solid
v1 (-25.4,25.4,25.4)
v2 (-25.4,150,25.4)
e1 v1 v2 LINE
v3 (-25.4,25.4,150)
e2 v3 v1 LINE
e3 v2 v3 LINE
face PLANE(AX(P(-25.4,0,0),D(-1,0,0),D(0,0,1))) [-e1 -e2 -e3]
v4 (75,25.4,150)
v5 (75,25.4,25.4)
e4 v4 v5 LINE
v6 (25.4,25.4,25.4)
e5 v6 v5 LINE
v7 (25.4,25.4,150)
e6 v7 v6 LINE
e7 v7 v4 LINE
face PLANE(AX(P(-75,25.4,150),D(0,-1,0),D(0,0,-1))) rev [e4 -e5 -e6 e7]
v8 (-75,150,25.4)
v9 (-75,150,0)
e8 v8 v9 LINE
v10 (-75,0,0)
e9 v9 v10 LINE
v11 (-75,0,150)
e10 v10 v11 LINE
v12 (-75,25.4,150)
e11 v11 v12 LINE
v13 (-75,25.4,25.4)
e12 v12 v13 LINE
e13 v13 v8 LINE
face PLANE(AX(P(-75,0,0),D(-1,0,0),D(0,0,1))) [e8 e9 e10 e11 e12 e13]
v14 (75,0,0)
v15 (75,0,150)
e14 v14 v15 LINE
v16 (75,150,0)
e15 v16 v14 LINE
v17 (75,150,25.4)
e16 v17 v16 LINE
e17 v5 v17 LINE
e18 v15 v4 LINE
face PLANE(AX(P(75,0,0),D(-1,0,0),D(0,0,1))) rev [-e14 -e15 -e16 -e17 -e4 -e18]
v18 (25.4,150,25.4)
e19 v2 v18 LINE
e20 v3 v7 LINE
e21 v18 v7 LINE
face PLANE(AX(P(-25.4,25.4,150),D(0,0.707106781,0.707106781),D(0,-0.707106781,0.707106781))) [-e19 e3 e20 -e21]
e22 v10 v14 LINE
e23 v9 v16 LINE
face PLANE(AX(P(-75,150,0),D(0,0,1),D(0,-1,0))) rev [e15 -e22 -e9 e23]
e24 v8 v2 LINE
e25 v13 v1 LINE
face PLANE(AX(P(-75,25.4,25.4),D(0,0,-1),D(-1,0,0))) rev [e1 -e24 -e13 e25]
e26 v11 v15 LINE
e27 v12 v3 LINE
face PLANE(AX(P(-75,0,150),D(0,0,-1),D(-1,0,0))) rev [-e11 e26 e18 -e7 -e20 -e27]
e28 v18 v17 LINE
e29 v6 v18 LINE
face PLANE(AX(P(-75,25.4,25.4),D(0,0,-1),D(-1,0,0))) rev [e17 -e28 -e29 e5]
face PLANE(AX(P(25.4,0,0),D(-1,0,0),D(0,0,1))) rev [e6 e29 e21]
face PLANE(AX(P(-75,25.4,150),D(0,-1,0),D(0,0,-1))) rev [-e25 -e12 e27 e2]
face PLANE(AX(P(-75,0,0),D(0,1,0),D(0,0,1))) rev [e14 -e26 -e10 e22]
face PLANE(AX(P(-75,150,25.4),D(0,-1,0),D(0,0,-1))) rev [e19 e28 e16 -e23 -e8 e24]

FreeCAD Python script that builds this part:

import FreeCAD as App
import Part
import Sketcher
from FreeCAD import Vector


def add_polygon(sketch, points):
    """Adds a closed chain of lines whose ends are joined by coincident constraints."""
    first, n = sketch.GeometryCount, len(points)
    for a, b in zip(points, points[1:] + points[:1]):
        sketch.addGeometry(Part.LineSegment(App.Vector(*a, 0), App.Vector(*b, 0)), False)
    for i in range(n):
        sketch.addConstraint(Sketcher.Constraint("Coincident", first + i, 2, first + (i + 1) % n, 1))

doc = App.newDocument("Part")
body = doc.addObject("PartDesign::Body", "Body")

# Sketch on YZ plane
sketch1 = body.newObject("Sketcher::SketchObject", "Sketch")
sketch1.AttachmentSupport = (doc.getObject("YZ_Plane"), [""])
sketch1.MapMode = "FlatFace"
add_polygon(sketch1, [(0, 150), (0, 0), (150, 0), (150, 25), (25, 25), (25, 150)])  # lines 0-5
sketch1.addConstraint([
    Sketcher.Constraint("Vertical", 0),
    Sketcher.Constraint("Horizontal", 1),
    Sketcher.Constraint("Vertical", 2),
    Sketcher.Constraint("Horizontal", 3),
    Sketcher.Constraint("Vertical", 4),
    Sketcher.Constraint("Horizontal", 5),
    Sketcher.Constraint("Coincident", 0, 2, -1, 1),
    Sketcher.Constraint("Equal", 1, 0),
    Sketcher.Constraint("Equal", 5, 2),
    Sketcher.Constraint("DistanceX", 1, 1, 1, 2, 150.0),
    Sketcher.Constraint("DistanceX", 3, 2, 3, 1, 124.6),
])
pad1 = body.newObject("PartDesign::Pad", "Pad")
pad1.Profile = sketch1
pad1.Type = "TwoLengths"
pad1.Length = 75
pad1.Length2 = 75

# Sketch on YZ plane
sketch2 = body.newObject("Sketcher::SketchObject", "Sketch001")
sketch2.AttachmentSupport = (doc.getObject("YZ_Plane"), [""])
sketch2.MapMode = "FlatFace"
add_polygon(sketch2, [(25, 150), (0, 150), (0, 0), (150, 0), (150, 25)])  # lines 0-4
sketch2.addConstraint([
    Sketcher.Constraint("Horizontal", 0),
    Sketcher.Constraint("Vertical", 1),
    Sketcher.Constraint("Horizontal", 2),
    Sketcher.Constraint("Vertical", 3),
    Sketcher.Constraint("Coincident", 1, 2, -1, 1),
    Sketcher.Constraint("Equal", 2, 1),
    Sketcher.Constraint("Equal", 0, 3),
    Sketcher.Constraint("DistanceX", 2, 1, 2, 2, 150.0),
    Sketcher.Constraint("DistanceX", 0, 2, 0, 1, 25.4),
])
pad2 = body.newObject("PartDesign::Pad", "Pad001")
pad2.Profile = sketch2
pad2.Type = "TwoLengths"
pad2.Length = 25.4
pad2.Length2 = 25.4

doc.recompute()
